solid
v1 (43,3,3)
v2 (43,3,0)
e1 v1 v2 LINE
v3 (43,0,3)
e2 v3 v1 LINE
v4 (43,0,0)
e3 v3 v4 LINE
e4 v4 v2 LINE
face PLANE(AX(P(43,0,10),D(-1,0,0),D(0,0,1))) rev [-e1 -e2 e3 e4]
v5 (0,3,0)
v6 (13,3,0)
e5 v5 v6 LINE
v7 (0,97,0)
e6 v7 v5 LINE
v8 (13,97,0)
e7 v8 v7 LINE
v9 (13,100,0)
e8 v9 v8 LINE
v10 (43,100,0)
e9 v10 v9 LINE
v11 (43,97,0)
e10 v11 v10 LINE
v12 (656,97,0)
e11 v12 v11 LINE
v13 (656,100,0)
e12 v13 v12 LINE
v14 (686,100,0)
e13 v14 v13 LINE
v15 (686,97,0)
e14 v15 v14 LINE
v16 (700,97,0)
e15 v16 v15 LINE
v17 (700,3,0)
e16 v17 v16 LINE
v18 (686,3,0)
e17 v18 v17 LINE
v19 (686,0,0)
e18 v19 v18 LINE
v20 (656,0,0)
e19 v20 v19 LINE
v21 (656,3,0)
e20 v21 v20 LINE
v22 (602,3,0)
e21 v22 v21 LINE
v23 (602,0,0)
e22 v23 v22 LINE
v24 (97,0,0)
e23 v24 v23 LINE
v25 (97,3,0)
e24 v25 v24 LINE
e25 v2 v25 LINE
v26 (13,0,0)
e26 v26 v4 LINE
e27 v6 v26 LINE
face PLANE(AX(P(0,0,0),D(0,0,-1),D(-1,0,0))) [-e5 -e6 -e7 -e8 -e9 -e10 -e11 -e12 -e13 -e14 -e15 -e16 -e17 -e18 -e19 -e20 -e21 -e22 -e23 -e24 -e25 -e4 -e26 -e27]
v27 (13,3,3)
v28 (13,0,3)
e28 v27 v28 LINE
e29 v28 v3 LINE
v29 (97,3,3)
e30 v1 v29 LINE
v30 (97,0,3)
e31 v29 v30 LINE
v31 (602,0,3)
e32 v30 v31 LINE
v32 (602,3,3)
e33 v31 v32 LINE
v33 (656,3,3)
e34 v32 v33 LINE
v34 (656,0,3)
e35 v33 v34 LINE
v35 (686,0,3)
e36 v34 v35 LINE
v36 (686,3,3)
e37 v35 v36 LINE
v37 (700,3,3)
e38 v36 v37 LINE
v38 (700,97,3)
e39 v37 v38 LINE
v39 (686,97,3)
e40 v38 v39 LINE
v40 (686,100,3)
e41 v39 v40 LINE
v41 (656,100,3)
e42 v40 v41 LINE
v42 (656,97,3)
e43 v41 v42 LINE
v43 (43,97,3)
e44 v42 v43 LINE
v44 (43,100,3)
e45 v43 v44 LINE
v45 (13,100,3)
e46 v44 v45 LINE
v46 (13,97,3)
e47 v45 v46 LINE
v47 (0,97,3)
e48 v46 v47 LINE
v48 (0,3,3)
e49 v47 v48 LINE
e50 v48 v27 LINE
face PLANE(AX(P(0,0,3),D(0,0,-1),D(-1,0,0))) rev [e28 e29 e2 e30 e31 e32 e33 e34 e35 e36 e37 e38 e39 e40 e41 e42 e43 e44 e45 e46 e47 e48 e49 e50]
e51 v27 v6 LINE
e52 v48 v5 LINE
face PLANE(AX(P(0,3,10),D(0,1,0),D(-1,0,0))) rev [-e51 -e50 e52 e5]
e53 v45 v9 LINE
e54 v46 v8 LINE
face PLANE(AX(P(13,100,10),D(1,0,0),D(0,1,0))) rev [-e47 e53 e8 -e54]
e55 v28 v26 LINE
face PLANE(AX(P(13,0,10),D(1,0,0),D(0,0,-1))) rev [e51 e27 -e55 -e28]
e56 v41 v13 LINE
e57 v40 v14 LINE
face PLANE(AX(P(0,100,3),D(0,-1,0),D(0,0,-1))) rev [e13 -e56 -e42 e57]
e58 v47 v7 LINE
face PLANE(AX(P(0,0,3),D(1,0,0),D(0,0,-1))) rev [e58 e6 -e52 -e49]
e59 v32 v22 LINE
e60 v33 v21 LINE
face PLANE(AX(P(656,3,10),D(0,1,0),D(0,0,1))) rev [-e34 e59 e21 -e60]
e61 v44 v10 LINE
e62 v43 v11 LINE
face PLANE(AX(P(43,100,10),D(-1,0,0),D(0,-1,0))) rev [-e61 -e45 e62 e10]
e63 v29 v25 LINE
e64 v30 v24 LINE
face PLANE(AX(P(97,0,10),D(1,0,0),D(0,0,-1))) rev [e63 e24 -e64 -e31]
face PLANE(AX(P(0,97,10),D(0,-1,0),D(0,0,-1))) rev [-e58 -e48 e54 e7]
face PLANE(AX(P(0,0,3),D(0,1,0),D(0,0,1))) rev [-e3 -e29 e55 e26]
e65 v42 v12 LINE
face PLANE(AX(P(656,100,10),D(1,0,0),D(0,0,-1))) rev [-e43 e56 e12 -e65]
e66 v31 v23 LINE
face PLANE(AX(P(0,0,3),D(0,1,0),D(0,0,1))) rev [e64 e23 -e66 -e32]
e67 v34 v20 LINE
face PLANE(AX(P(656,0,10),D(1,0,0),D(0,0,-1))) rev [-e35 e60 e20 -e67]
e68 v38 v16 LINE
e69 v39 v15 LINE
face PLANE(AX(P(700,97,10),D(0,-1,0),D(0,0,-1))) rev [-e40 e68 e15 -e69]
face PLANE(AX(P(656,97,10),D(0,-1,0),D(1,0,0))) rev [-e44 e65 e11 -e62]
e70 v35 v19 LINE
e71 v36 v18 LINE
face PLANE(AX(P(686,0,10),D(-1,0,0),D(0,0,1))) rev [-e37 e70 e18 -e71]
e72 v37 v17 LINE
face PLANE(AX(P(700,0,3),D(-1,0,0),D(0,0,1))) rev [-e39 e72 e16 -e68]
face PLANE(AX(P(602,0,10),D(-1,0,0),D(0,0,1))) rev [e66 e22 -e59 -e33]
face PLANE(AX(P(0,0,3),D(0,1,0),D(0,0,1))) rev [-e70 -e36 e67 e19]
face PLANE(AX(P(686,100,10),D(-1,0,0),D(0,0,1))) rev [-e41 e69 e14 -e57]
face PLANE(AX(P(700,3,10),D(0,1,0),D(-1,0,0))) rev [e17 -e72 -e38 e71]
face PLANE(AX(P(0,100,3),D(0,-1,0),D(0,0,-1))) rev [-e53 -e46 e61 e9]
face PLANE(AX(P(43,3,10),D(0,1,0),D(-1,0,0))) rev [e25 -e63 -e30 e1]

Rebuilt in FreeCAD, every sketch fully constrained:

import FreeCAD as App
import Part
import Sketcher

doc = App.newDocument("Part")
body = doc.addObject("PartDesign::Body", "Body")

sketch1 = body.newObject("Sketcher::SketchObject", "Sketch")
sketch1.AttachmentSupport = (doc.getObject("XY_Plane"), [""])
sketch1.MapMode = "FlatFace"
sketch1.addGeometry([
    Part.LineSegment(App.Vector(0, 100, 0), App.Vector(0, 0, 0)),
    Part.LineSegment(App.Vector(0, 0, 0), App.Vector(700, 0, 0)),
    Part.LineSegment(App.Vector(700, 0, 0), App.Vector(700, 100, 0)),
    Part.LineSegment(App.Vector(700, 100, 0), App.Vector(0, 100, 0)),
], False)
sketch1.addConstraint([
    Sketcher.Constraint("Coincident", 0, 2, 1, 1),
    Sketcher.Constraint("Coincident", 1, 2, 2, 1),
    Sketcher.Constraint("Coincident", 2, 2, 3, 1),
    Sketcher.Constraint("Coincident", 3, 2, 0, 1),
    Sketcher.Constraint("Vertical", 0),
    Sketcher.Constraint("Horizontal", 1),
    Sketcher.Constraint("Vertical", 2),
    Sketcher.Constraint("Horizontal", 3),
    Sketcher.Constraint("Coincident", 0, 2, -1, 1),
    Sketcher.Constraint("DistanceX", 1, 1, 1, 2, 700.0),
    Sketcher.Constraint("DistanceY", 0, 2, 0, 1, 100.0),
])
pad1 = body.newObject("PartDesign::Pad", "Pad")
pad1.Profile = sketch1
pad1.Length = 3

sketch2 = body.newObject("Sketcher::SketchObject", "Sketch001")
sketch2.AttachmentSupport = (doc.getObject("XY_Plane"), [""])
sketch2.MapMode = "FlatFace"
sketch2.addGeometry([
    Part.LineSegment(App.Vector(700, 3, 0), App.Vector(700, 0, 0)),
    Part.LineSegment(App.Vector(700, 0, 0), App.Vector(686, 0, 0)),
    Part.LineSegment(App.Vector(686, 0, 0), App.Vector(686, 3, 0)),
    Part.LineSegment(App.Vector(686, 3, 0), App.Vector(700, 3, 0)),
], False)
sketch2.addConstraint([
    Sketcher.Constraint("Coincident", 0, 2, 1, 1),
    Sketcher.Constraint("Coincident", 1, 2, 2, 1),
    Sketcher.Constraint("Coincident", 2, 2, 3, 1),
    Sketcher.Constraint("Coincident", 3, 2, 0, 1),
    Sketcher.Constraint("Vertical", 0),
    Sketcher.Constraint("Horizontal", 1),
    Sketcher.Constraint("Vertical", 2),
    Sketcher.Constraint("Horizontal", 3),
    Sketcher.Constraint("PointOnObject", 0, 2, -1),
    Sketcher.Constraint("DistanceX", 1, 2, 1, 1, 14.0),
    Sketcher.Constraint("DistanceY", 0, 2, 0, 1, 3.0),
    Sketcher.Constraint("DistanceX", -1, 1, 0, 2, 700.0),
])
pocket1 = body.newObject("PartDesign::Pocket", "Pocket")
pocket1.Profile = sketch2
pocket1.Length = 10
pocket1.Reversed = True

sketch3 = body.newObject("Sketcher::SketchObject", "Sketch002")
sketch3.AttachmentSupport = (doc.getObject("XY_Plane"), [""])
sketch3.MapMode = "FlatFace"
sketch3.addGeometry([
    Part.LineSegment(App.Vector(656, 3, 0), App.Vector(656, 0, 0)),
    Part.LineSegment(App.Vector(656, 0, 0), App.Vector(602, 0, 0)),
    Part.LineSegment(App.Vector(602, 0, 0), App.Vector(602, 3, 0)),
    Part.LineSegment(App.Vector(602, 3, 0), App.Vector(656, 3, 0)),
], False)
sketch3.addConstraint([
    Sketcher.Constraint("Coincident", 0, 2, 1, 1),
    Sketcher.Constraint("Coincident", 1, 2, 2, 1),
    Sketcher.Constraint("Coincident", 2, 2, 3, 1),
    Sketcher.Constraint("Coincident", 3, 2, 0, 1),
    Sketcher.Constraint("Vertical", 0),
    Sketcher.Constraint("Horizontal", 1),
    Sketcher.Constraint("Vertical", 2),
    Sketcher.Constraint("Horizontal", 3),
    Sketcher.Constraint("PointOnObject", 0, 2, -1),
    Sketcher.Constraint("DistanceX", 1, 2, 1, 1, 54.0),
    Sketcher.Constraint("DistanceY", 0, 2, 0, 1, 3.0),
    Sketcher.Constraint("DistanceX", -1, 1, 0, 2, 656.0),
])
pocket2 = body.newObject("PartDesign::Pocket", "Pocket001")
pocket2.Profile = sketch3
pocket2.Length = 10
pocket2.Reversed = True

sketch4 = body.newObject("Sketcher::SketchObject", "Sketch003")
sketch4.AttachmentSupport = (doc.getObject("XY_Plane"), [""])
sketch4.MapMode = "FlatFace"
sketch4.addGeometry([
    Part.LineSegment(App.Vector(13, 3, 0), App.Vector(13, 0, 0)),
    Part.LineSegment(App.Vector(13, 0, 0), App.Vector(0, 0, 0)),
    Part.LineSegment(App.Vector(0, 0, 0), App.Vector(0, 3, 0)),
    Part.LineSegment(App.Vector(0, 3, 0), App.Vector(13, 3, 0)),
], False)
sketch4.addConstraint([
    Sketcher.Constraint("Coincident", 0, 2, 1, 1),
    Sketcher.Constraint("Coincident", 1, 2, 2, 1),
    Sketcher.Constraint("Coincident", 2, 2, 3, 1),
    Sketcher.Constraint("Coincident", 3, 2, 0, 1),
    Sketcher.Constraint("Vertical", 0),
    Sketcher.Constraint("Horizontal", 1),
    Sketcher.Constraint("Vertical", 2),
    Sketcher.Constraint("Horizontal", 3),
    Sketcher.Constraint("Coincident", 1, 2, -1, 1),
    Sketcher.Constraint("DistanceX", 1, 2, 1, 1, 13.0),
    Sketcher.Constraint("DistanceY", 0, 2, 0, 1, 3.0),
])
pocket3 = body.newObject("PartDesign::Pocket", "Pocket002")
pocket3.Profile = sketch4
pocket3.Length = 10
pocket3.Reversed = True

sketch5 = body.newObject("Sketcher::SketchObject", "Sketch004")
sketch5.AttachmentSupport = (doc.getObject("XY_Plane"), [""])
sketch5.MapMode = "FlatFace"
sketch5.addGeometry([
    Part.LineSegment(App.Vector(97, 3, 0), App.Vector(97, 0, 0)),
    Part.LineSegment(App.Vector(97, 0, 0), App.Vector(43, 0, 0)),
    Part.LineSegment(App.Vector(43, 0, 0), App.Vector(43, 3, 0)),
    Part.LineSegment(App.Vector(43, 3, 0), App.Vector(97, 3, 0)),
], False)
sketch5.addConstraint([
    Sketcher.Constraint("Coincident", 0, 2, 1, 1),
    Sketcher.Constraint("Coincident", 1, 2, 2, 1),
    Sketcher.Constraint("Coincident", 2, 2, 3, 1),
    Sketcher.Constraint("Coincident", 3, 2, 0, 1),
    Sketcher.Constraint("Vertical", 0),
    Sketcher.Constraint("Horizontal", 1),
    Sketcher.Constraint("Vertical", 2),
    Sketcher.Constraint("Horizontal", 3),
    Sketcher.Constraint("PointOnObject", 0, 2, -1),
    Sketcher.Constraint("DistanceX", 1, 2, 1, 1, 54.0),
    Sketcher.Constraint("DistanceY", 0, 2, 0, 1, 3.0),
    Sketcher.Constraint("DistanceX", -1, 1, 0, 2, 97.0),
])
pocket4 = body.newObject("PartDesign::Pocket", "Pocket003")
pocket4.Profile = sketch5
pocket4.Length = 10
pocket4.Reversed = True

sketch6 = body.newObject("Sketcher::SketchObject", "Sketch005")
sketch6.AttachmentSupport = (doc.getObject("XY_Plane"), [""])
sketch6.MapMode = "FlatFace"
sketch6.addGeometry([
    Part.LineSegment(App.Vector(700, 100, 0), App.Vector(700, 97, 0)),
    Part.LineSegment(App.Vector(700, 97, 0), App.Vector(686, 97, 0)),
    Part.LineSegment(App.Vector(686, 97, 0), App.Vector(686, 100, 0)),
    Part.LineSegment(App.Vector(686, 100, 0), App.Vector(700, 100, 0)),
], False)
sketch6.addConstraint([
    Sketcher.Constraint("Coincident", 0, 2, 1, 1),
    Sketcher.Constraint("Coincident", 1, 2, 2, 1),
    Sketcher.Constraint("Coincident", 2, 2, 3, 1),
    Sketcher.Constraint("Coincident", 3, 2, 0, 1),
    Sketcher.Constraint("Vertical", 0),
    Sketcher.Constraint("Horizontal", 1),
    Sketcher.Constraint("Vertical", 2),
    Sketcher.Constraint("Horizontal", 3),
    Sketcher.Constraint("DistanceX", 1, 2, 1, 1, 14.0),
    Sketcher.Constraint("DistanceY", 0, 2, 0, 1, 3.0),
    Sketcher.Constraint("DistanceX", -1, 1, 0, 2, 700.0),
    Sketcher.Constraint("DistanceY", -1, 1, 0, 2, 97.0),
])
pocket5 = body.newObject("PartDesign::Pocket", "Pocket004")
pocket5.Profile = sketch6
pocket5.Length = 10
pocket5.Reversed = True

sketch7 = body.newObject("Sketcher::SketchObject", "Sketch006")
sketch7.AttachmentSupport = (doc.getObject("XY_Plane"), [""])
sketch7.MapMode = "FlatFace"
sketch7.addGeometry([
    Part.LineSegment(App.Vector(656, 100, 0), App.Vector(656, 97, 0)),
    Part.LineSegment(App.Vector(656, 97, 0), App.Vector(602, 97, 0)),
    Part.LineSegment(App.Vector(602, 97, 0), App.Vector(602, 100, 0)),
    Part.LineSegment(App.Vector(602, 100, 0), App.Vector(656, 100, 0)),
], False)
sketch7.addConstraint([
    Sketcher.Constraint("Coincident", 0, 2, 1, 1),
    Sketcher.Constraint("Coincident", 1, 2, 2, 1),
    Sketcher.Constraint("Coincident", 2, 2, 3, 1),
    Sketcher.Constraint("Coincident", 3, 2, 0, 1),
    Sketcher.Constraint("Vertical", 0),
    Sketcher.Constraint("Horizontal", 1),
    Sketcher.Constraint("Vertical", 2),
    Sketcher.Constraint("Horizontal", 3),
    Sketcher.Constraint("DistanceX", 1, 2, 1, 1, 54.0),
    Sketcher.Constraint("DistanceY", 0, 2, 0, 1, 3.0),
    Sketcher.Constraint("DistanceX", -1, 1, 0, 2, 656.0),
    Sketcher.Constraint("DistanceY", -1, 1, 0, 2, 97.0),
])
pocket6 = body.newObject("PartDesign::Pocket", "Pocket005")
pocket6.Profile = sketch7
pocket6.Length = 10
pocket6.Reversed = True

sketch8 = body.newObject("Sketcher::SketchObject", "Sketch007")
sketch8.AttachmentSupport = (doc.getObject("XY_Plane"), [""])
sketch8.MapMode = "FlatFace"
sketch8.addGeometry([
    Part.LineSegment(App.Vector(13, 100, 0), App.Vector(13, 97, 0)),
    Part.LineSegment(App.Vector(13, 97, 0), App.Vector(0, 97, 0)),
    Part.LineSegment(App.Vector(0, 97, 0), App.Vector(0, 100, 0)),
    Part.LineSegment(App.Vector(0, 100, 0), App.Vector(13, 100, 0)),
], False)
sketch8.addConstraint([
    Sketcher.Constraint("Coincident", 0, 2, 1, 1),
    Sketcher.Constraint("Coincident", 1, 2, 2, 1),
    Sketcher.Constraint("Coincident", 2, 2, 3, 1),
    Sketcher.Constraint("Coincident", 3, 2, 0, 1),
    Sketcher.Constraint("Vertical", 0),
    Sketcher.Constraint("Horizontal", 1),
    Sketcher.Constraint("Vertical", 2),
    Sketcher.Constraint("Horizontal", 3),
    Sketcher.Constraint("PointOnObject", 1, 2, -2),
    Sketcher.Constraint("DistanceX", 1, 2, 1, 1, 13.0),
    Sketcher.Constraint("DistanceY", 0, 2, 0, 1, 3.0),
    Sketcher.Constraint("DistanceY", -1, 1, 0, 2, 97.0),
])
pocket7 = body.newObject("PartDesign::Pocket", "Pocket006")
pocket7.Profile = sketch8
pocket7.Length = 10
pocket7.Reversed = True

sketch9 = body.newObject("Sketcher::SketchObject", "Sketch008")
sketch9.AttachmentSupport = (doc.getObject("XY_Plane"), [""])
sketch9.MapMode = "FlatFace"
sketch9.addGeometry([
    Part.LineSegment(App.Vector(97, 100, 0), App.Vector(97, 97, 0)),
    Part.LineSegment(App.Vector(97, 97, 0), App.Vector(43, 97, 0)),
    Part.LineSegment(App.Vector(43, 97, 0), App.Vector(43, 100, 0)),
    Part.LineSegment(App.Vector(43, 100, 0), App.Vector(97, 100, 0)),
], False)
sketch9.addConstraint([
    Sketcher.Constraint("Coincident", 0, 2, 1, 1),
    Sketcher.Constraint("Coincident", 1, 2, 2, 1),
    Sketcher.Constraint("Coincident", 2, 2, 3, 1),
    Sketcher.Constraint("Coincident", 3, 2, 0, 1),
    Sketcher.Constraint("Vertical", 0),
    Sketcher.Constraint("Horizontal", 1),
    Sketcher.Constraint("Vertical", 2),
    Sketcher.Constraint("Horizontal", 3),
    Sketcher.Constraint("DistanceX", 1, 2, 1, 1, 54.0),
    Sketcher.Constraint("DistanceY", 0, 2, 0, 1, 3.0),
    Sketcher.Constraint("DistanceX", -1, 1, 0, 2, 97.0),
    Sketcher.Constraint("DistanceY", -1, 1, 0, 2, 97.0),
])
pocket8 = body.newObject("PartDesign::Pocket", "Pocket007")
pocket8.Profile = sketch9
pocket8.Length = 10
pocket8.Reversed = True

sketch10 = body.newObject("Sketcher::SketchObject", "Sketch009")
sketch10.AttachmentSupport = (doc.getObject("XY_Plane"), [""])
sketch10.MapMode = "FlatFace"
sketch10.AttachmentOffset = App.Placement(App.Vector(0, 0, 3), App.Rotation())
sketch10.addGeometry([
    Part.LineSegment(App.Vector(97, 100, 0), App.Vector(97, 97, 0)),
    Part.LineSegment(App.Vector(97, 97, 0), App.Vector(602, 97, 0)),
    Part.LineSegment(App.Vector(602, 97, 0), App.Vector(602, 100, 0)),
    Part.LineSegment(App.Vector(602, 100, 0), App.Vector(97, 100, 0)),
], False)
sketch10.addConstraint([
    Sketcher.Constraint("Coincident", 0, 2, 1, 1),
    Sketcher.Constraint("Coincident", 1, 2, 2, 1),
    Sketcher.Constraint("Coincident", 2, 2, 3, 1),
    Sketcher.Constraint("Coincident", 3, 2, 0, 1),
    Sketcher.Constraint("Vertical", 0),
    Sketcher.Constraint("Horizontal", 1),
    Sketcher.Constraint("Vertical", 2),
    Sketcher.Constraint("Horizontal", 3),
    Sketcher.Constraint("DistanceX", 1, 1, 1, 2, 505.0),
    Sketcher.Constraint("DistanceY", 0, 2, 0, 1, 3.0),
    Sketcher.Constraint("DistanceX", -1, 1, 0, 2, 97.0),
    Sketcher.Constraint("DistanceY", -1, 1, 0, 2, 97.0),
])
pocket9 = body.newObject("PartDesign::Pocket", "Pocket008")
pocket9.Profile = sketch10
pocket9.Length = 3

doc.recompute()
